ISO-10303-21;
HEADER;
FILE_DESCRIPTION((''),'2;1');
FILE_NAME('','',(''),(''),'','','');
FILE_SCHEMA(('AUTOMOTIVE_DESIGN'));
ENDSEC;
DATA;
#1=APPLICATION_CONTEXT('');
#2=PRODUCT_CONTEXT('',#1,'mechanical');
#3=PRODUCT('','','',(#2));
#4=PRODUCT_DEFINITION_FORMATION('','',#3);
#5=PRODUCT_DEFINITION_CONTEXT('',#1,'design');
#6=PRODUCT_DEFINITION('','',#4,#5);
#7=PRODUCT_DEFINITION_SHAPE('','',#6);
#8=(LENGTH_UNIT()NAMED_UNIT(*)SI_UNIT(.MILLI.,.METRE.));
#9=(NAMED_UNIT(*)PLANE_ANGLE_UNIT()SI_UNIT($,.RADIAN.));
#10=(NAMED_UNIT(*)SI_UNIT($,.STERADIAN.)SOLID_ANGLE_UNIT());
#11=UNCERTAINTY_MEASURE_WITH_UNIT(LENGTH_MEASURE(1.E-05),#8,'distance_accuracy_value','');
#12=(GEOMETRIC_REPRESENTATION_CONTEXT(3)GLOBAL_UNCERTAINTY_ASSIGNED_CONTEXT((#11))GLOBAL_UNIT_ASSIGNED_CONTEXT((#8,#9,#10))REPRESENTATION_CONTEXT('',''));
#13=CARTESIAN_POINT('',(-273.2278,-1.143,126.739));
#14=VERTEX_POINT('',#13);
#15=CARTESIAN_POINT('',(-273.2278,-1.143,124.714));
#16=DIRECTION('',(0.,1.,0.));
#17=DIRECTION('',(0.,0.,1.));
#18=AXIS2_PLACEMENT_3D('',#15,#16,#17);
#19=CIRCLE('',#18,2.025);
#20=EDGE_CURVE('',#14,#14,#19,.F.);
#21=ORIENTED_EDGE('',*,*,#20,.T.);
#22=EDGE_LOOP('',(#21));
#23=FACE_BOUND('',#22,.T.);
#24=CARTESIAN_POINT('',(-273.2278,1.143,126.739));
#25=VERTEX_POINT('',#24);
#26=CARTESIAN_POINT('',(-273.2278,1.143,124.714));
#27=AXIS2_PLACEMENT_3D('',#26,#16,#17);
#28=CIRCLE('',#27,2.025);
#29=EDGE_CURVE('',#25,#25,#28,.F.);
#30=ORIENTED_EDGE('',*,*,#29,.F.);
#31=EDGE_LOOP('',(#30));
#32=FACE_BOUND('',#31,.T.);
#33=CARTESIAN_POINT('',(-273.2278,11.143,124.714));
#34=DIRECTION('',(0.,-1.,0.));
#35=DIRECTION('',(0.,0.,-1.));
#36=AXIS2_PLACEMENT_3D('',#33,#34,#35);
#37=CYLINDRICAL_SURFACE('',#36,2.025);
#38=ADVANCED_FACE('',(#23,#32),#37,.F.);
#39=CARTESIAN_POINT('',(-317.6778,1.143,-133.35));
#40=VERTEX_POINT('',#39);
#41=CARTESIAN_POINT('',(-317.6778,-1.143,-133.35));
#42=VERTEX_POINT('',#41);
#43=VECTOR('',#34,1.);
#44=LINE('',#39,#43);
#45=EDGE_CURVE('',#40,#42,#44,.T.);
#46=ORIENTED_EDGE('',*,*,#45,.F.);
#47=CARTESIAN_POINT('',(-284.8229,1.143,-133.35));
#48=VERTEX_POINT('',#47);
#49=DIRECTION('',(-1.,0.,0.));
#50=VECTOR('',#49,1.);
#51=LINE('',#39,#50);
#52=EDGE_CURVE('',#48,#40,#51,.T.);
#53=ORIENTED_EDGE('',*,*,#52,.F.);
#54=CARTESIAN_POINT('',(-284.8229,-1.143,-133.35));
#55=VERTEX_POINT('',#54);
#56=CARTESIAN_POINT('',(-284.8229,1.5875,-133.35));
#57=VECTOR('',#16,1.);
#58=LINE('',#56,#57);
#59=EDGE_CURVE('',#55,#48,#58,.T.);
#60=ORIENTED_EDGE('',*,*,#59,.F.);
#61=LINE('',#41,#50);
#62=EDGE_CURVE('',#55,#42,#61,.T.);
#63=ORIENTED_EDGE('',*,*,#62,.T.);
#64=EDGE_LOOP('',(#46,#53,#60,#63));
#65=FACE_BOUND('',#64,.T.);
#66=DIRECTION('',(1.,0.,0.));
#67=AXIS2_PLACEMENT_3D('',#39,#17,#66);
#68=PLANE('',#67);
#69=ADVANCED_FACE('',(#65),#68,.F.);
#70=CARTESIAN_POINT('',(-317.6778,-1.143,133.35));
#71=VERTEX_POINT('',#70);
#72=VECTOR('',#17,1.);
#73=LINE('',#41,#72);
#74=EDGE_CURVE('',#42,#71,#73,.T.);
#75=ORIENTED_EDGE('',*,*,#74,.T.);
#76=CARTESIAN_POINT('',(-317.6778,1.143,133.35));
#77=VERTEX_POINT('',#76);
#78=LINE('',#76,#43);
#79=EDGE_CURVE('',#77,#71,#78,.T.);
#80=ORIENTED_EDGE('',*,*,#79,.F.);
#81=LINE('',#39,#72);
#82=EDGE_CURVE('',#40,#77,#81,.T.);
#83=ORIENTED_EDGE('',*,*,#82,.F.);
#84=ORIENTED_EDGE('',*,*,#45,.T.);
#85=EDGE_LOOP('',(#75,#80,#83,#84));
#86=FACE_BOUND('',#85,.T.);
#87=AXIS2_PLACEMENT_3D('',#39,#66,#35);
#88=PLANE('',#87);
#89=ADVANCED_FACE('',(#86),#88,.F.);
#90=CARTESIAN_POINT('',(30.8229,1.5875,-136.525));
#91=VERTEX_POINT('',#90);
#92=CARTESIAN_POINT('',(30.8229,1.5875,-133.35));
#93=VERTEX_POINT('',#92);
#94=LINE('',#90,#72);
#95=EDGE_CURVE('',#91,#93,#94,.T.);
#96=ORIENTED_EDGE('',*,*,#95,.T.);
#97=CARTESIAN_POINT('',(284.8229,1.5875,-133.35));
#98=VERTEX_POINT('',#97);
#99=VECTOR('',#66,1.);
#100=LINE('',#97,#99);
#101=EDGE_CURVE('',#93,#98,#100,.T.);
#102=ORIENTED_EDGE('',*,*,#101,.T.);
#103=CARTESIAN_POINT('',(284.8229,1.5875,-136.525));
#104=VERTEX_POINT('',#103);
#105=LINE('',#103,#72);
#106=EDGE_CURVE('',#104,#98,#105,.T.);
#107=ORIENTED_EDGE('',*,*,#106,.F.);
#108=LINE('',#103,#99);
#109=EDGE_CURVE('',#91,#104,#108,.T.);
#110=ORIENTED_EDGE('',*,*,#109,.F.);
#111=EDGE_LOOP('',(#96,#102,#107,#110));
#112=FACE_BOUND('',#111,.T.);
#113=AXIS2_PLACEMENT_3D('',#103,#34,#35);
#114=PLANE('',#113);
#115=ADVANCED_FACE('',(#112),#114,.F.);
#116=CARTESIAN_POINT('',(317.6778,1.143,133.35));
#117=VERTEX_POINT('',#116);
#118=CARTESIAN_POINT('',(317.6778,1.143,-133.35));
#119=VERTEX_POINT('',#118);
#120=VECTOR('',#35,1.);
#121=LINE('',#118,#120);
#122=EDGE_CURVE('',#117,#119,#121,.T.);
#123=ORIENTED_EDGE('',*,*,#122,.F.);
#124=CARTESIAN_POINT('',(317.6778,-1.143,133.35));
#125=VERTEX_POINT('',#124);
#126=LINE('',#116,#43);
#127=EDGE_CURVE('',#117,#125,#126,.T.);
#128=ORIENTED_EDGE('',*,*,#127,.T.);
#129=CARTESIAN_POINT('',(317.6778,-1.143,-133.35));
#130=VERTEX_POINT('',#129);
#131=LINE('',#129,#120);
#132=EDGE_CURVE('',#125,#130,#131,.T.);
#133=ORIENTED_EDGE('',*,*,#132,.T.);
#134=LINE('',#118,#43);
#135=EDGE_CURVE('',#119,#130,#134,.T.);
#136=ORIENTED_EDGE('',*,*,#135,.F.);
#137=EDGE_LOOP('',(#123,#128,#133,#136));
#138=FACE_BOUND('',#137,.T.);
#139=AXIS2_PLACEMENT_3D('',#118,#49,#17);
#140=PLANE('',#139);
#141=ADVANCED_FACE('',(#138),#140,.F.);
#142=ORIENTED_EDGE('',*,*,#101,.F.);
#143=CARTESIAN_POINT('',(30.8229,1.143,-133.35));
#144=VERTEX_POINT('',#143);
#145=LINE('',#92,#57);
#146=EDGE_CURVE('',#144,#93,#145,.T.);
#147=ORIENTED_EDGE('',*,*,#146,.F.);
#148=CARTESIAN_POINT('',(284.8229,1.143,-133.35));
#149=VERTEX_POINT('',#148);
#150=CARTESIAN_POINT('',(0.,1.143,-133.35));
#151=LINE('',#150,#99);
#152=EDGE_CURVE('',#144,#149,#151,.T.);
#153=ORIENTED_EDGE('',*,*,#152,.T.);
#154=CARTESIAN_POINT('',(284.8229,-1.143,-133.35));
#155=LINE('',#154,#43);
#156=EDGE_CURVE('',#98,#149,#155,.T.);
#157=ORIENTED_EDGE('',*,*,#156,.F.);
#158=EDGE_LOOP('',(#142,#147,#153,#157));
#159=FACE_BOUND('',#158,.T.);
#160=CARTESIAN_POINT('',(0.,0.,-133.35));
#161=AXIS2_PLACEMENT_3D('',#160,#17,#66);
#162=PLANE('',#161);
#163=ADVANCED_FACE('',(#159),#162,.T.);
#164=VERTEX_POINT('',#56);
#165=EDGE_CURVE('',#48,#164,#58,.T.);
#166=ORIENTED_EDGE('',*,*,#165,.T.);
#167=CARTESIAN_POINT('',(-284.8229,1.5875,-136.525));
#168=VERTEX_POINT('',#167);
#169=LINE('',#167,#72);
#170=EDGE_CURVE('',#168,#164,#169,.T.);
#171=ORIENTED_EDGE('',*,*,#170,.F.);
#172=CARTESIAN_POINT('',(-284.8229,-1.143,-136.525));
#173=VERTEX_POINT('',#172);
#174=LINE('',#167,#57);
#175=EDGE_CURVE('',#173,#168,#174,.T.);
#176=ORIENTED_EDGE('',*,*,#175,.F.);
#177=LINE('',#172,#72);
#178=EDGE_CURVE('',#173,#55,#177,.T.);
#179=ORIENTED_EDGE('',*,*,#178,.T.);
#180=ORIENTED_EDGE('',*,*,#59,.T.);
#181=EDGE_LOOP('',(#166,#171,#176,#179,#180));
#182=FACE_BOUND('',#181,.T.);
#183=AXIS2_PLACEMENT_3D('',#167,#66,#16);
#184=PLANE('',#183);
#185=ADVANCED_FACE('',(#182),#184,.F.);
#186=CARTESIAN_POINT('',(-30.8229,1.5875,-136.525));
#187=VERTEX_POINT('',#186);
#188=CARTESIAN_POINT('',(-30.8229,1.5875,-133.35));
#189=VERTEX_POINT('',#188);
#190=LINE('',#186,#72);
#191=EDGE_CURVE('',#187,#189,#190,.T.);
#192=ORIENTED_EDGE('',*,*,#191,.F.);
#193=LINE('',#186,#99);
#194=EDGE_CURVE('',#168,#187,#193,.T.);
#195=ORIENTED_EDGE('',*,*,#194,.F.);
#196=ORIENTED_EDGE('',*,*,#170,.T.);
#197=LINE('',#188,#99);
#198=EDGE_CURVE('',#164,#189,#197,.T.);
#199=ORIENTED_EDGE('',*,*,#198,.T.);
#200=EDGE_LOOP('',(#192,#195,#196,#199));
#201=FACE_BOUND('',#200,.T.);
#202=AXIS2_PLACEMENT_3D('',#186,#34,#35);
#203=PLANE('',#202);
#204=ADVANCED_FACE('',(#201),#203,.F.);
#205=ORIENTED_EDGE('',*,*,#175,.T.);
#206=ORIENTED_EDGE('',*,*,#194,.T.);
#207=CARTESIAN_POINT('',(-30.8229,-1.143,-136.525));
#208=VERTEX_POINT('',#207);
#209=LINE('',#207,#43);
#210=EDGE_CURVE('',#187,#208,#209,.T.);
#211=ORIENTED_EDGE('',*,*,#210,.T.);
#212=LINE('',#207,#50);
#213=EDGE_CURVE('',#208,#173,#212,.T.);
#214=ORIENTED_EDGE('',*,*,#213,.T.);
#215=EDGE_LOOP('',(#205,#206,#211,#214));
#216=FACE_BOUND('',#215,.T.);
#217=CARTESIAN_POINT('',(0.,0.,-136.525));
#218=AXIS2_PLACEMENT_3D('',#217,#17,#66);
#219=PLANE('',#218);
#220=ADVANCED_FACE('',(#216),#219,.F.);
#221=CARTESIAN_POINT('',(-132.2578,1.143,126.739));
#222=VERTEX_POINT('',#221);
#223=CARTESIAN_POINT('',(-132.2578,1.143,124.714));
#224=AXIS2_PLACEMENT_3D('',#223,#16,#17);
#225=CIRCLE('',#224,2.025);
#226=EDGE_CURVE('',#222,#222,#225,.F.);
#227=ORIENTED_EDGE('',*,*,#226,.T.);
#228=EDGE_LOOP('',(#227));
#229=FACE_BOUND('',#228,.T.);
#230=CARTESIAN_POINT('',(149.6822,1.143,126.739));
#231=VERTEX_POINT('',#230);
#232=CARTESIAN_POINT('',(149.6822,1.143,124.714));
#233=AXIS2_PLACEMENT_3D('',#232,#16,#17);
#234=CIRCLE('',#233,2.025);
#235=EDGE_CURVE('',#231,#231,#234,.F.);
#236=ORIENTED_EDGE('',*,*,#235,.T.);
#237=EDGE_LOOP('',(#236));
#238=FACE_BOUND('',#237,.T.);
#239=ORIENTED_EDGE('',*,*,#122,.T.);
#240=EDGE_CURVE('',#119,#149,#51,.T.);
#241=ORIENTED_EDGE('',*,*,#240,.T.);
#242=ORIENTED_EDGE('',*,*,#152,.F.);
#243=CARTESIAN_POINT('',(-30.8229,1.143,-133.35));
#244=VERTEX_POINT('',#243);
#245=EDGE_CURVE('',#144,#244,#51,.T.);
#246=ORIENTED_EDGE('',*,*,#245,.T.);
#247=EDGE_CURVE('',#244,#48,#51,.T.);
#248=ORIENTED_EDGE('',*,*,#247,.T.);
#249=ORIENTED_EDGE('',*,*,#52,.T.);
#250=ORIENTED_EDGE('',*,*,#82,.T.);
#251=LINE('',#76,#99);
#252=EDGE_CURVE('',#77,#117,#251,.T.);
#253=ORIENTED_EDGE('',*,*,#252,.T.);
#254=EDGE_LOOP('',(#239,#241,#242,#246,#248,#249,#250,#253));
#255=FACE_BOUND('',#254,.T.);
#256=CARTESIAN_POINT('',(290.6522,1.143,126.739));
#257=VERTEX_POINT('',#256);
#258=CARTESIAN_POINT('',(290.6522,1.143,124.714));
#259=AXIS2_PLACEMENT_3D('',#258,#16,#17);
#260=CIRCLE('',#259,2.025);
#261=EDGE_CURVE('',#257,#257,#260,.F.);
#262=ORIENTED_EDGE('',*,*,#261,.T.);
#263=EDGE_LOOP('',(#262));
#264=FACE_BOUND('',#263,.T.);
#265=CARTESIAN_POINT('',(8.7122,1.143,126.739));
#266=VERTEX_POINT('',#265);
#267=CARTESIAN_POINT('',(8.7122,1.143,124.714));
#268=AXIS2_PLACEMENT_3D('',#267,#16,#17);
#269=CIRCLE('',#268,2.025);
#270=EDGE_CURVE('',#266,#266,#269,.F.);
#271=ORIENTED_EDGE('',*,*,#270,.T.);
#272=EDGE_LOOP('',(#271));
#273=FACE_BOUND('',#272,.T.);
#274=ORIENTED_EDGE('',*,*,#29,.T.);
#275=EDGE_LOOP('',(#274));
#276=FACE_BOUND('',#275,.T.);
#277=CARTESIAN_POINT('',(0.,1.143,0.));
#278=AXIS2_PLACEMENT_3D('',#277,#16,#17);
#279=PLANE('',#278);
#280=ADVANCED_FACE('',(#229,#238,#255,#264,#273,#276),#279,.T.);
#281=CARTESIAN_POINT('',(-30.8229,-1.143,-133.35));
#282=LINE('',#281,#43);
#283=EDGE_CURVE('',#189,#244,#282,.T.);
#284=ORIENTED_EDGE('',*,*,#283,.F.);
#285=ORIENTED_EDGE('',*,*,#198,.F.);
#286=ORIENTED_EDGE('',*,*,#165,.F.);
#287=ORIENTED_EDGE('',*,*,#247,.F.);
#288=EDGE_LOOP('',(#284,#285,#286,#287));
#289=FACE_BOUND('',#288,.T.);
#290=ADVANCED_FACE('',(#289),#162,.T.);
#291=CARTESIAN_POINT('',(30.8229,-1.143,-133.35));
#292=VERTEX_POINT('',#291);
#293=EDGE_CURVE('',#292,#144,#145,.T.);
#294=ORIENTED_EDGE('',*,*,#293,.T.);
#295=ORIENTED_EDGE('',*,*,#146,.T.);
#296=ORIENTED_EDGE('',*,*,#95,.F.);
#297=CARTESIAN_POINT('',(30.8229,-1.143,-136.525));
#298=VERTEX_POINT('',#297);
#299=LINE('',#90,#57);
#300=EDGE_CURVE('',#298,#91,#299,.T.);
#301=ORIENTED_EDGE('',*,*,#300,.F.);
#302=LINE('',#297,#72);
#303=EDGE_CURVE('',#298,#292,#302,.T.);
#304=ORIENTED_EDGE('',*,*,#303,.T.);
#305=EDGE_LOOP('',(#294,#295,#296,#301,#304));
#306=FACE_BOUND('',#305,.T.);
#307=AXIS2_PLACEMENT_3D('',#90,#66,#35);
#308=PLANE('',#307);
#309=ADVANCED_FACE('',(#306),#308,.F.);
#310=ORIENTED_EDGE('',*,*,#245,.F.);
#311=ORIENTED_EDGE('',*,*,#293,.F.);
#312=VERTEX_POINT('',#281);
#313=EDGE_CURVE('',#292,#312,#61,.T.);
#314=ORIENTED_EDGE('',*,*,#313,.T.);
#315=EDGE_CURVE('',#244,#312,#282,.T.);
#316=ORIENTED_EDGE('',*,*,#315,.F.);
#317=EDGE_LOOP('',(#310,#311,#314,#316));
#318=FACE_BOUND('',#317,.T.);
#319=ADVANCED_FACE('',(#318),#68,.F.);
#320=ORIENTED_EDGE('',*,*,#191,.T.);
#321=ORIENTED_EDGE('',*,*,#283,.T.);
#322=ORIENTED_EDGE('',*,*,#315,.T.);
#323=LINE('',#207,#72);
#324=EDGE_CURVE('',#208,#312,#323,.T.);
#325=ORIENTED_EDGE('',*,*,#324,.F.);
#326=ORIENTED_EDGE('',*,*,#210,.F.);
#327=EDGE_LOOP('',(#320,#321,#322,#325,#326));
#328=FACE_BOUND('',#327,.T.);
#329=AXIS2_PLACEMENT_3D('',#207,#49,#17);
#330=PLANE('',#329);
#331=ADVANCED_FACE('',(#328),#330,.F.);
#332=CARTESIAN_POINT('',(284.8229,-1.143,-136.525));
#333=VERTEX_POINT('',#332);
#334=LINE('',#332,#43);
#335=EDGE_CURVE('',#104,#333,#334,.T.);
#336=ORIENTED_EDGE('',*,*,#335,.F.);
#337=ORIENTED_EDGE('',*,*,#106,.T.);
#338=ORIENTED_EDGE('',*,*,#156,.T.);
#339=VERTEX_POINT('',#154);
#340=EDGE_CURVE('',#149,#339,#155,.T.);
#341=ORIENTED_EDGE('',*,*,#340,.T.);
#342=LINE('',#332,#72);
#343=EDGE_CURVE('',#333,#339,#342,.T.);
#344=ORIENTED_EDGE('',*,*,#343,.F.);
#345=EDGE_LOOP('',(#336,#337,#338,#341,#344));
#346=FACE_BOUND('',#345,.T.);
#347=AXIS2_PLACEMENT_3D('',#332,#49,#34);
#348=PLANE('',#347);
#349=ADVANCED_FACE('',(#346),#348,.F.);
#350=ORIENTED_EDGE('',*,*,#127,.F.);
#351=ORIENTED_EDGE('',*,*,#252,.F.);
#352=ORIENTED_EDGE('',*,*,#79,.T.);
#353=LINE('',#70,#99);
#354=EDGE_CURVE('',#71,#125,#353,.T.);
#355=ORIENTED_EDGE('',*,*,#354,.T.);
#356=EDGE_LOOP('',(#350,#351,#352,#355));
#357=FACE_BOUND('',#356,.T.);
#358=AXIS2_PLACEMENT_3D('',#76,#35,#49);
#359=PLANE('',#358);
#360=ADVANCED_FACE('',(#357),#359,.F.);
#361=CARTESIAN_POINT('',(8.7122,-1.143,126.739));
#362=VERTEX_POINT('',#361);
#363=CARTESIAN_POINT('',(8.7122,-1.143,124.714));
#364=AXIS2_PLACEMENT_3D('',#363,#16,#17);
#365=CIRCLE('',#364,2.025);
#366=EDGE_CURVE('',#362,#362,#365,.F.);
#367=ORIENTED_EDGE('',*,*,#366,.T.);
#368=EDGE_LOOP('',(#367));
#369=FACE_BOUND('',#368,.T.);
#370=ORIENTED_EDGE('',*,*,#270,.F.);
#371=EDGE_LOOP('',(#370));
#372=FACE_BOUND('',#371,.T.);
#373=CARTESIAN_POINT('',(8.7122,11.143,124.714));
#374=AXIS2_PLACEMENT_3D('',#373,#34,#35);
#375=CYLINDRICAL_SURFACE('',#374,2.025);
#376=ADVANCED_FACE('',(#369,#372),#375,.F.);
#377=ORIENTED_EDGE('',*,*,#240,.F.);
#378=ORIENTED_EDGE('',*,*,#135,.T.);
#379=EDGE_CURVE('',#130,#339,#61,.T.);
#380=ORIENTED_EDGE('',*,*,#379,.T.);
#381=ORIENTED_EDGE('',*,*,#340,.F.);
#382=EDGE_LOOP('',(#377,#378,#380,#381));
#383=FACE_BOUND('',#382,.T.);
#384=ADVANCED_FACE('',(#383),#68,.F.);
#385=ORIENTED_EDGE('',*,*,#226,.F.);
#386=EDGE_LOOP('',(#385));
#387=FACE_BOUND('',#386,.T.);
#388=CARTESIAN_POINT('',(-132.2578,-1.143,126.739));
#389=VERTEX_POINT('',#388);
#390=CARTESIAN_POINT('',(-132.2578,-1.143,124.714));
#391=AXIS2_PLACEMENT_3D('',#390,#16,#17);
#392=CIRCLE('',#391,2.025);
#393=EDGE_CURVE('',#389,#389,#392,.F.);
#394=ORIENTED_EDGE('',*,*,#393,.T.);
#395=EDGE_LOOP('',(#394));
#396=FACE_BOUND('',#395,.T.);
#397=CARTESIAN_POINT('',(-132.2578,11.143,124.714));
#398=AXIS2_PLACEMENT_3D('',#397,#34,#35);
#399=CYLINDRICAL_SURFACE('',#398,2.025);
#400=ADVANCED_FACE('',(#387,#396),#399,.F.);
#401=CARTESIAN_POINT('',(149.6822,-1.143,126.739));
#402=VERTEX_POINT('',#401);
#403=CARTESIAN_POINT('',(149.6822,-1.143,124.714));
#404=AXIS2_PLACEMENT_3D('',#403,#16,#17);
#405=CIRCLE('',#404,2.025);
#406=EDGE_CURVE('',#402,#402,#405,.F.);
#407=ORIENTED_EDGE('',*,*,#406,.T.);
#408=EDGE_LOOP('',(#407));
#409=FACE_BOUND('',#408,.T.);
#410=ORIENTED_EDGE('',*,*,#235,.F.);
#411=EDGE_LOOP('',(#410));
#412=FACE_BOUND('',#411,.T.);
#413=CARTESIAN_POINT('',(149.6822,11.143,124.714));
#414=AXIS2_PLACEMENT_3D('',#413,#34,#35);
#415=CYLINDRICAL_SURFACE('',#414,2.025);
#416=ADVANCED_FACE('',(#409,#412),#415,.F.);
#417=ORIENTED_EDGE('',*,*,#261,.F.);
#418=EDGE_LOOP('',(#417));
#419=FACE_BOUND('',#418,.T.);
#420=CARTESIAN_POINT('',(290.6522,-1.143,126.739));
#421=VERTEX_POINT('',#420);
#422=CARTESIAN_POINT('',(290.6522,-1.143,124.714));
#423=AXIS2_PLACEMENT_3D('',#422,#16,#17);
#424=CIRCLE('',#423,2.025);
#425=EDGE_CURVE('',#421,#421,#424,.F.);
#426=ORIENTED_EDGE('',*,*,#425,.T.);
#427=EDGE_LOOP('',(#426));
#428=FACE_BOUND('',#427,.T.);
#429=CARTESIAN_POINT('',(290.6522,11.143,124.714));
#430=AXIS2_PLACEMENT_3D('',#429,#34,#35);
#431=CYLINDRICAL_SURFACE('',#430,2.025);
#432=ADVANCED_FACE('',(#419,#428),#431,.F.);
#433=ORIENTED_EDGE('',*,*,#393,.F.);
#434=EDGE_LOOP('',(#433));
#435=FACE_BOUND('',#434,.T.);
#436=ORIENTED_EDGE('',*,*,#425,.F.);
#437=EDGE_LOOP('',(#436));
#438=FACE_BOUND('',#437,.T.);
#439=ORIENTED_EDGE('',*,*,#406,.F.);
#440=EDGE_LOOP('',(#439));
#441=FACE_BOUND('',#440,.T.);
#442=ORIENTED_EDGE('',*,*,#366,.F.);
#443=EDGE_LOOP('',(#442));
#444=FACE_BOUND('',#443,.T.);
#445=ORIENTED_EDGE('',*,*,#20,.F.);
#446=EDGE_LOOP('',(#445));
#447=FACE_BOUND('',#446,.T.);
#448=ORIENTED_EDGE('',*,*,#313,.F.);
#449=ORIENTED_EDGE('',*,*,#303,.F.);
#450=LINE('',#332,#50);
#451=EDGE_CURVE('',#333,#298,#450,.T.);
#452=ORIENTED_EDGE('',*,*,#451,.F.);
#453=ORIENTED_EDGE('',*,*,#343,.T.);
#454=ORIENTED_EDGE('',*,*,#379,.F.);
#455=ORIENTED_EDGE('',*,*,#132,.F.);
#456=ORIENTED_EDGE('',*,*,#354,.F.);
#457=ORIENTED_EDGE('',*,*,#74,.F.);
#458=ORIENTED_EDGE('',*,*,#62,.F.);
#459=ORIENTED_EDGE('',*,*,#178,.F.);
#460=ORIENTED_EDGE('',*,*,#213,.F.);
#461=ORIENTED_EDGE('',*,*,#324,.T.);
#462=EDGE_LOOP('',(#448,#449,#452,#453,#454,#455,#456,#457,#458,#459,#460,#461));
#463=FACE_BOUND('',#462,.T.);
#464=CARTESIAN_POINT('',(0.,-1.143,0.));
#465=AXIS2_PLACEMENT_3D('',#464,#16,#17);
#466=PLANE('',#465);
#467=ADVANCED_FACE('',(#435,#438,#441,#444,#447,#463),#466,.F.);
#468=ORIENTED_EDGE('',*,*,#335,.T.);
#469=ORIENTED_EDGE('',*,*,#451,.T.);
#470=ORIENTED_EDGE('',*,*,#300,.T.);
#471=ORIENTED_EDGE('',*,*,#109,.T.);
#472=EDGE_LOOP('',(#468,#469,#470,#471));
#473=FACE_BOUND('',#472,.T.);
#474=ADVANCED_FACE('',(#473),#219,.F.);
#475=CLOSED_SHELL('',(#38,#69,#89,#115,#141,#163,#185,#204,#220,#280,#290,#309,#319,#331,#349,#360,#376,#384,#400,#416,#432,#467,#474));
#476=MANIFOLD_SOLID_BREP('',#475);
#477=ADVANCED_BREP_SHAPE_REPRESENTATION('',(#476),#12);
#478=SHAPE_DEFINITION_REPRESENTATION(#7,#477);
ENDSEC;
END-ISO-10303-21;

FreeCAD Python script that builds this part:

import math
import FreeCAD as App
import Part
import Sketcher
Q = App.Units.Quantity


def add_polygon(sketch, points):
    """Adds a closed chain of lines whose ends are joined by coincident constraints."""
    first, n = sketch.GeometryCount, len(points)
    for a, b in zip(points, points[1:] + points[:1]):
        sketch.addGeometry(Part.LineSegment(App.Vector(*a, 0), App.Vector(*b, 0)), False)
    for i in range(n):
        sketch.addConstraint(Sketcher.Constraint("Coincident", first + i, 2, first + (i + 1) % n, 1))

doc = App.newDocument("Part")
body = doc.addObject("PartDesign::Body", "Body")

sketch1 = body.newObject("Sketcher::SketchObject", "Sketch")
sketch1.AttachmentSupport = (doc.getObject("XZ_Plane"), [""])
sketch1.MapMode = "FlatFace"
add_polygon(sketch1, [(-318, -133), (-318, 133), (318, 133), (318, -133)])
sketch1.addConstraint(Sketcher.Constraint("Vertical", 0))
sketch1.addConstraint(Sketcher.Constraint("Horizontal", 1))
sketch1.addConstraint(Sketcher.Constraint("Vertical", 2))
sketch1.addConstraint(Sketcher.Constraint("Horizontal", 3))
sketch1.addConstraint(Sketcher.Constraint("Symmetric", 0, 2, 2, 2, -1, 1))
sketch1.addConstraint(Sketcher.Constraint("DistanceY", 0, 1, 0, 2, Q("10.5 in")))
sketch1.addConstraint(Sketcher.Constraint("DistanceX", 1, 1, 1, 2, Q("25.014 in")))
pad1 = body.newObject("PartDesign::Pad", "Pad")
pad1.Profile = sketch1
pad1.Length = Q("0.09 in")
pad1.Midplane = True

sketch2 = body.newObject("Sketcher::SketchObject", "Sketch001")
sketch2.AttachmentSupport = (doc.getObject("XY_Plane"), [""])
sketch2.MapMode = "FlatFace"
sketch2.AttachmentOffset = App.Placement(App.Vector(0, 0, -5.25 * 25.4), App.Rotation())
add_polygon(sketch2, [(284.8, 1.6), (284.8, -1.1), (30.8, -1.1), (30.8, 1.6)])
add_polygon(sketch2, [(-30.8, 1.6), (-30.8, -1.1), (-284.8, -1.1), (-284.8, 1.6)])
sketch2.addConstraint(Sketcher.Constraint("Vertical", 0))
sketch2.addConstraint(Sketcher.Constraint("Horizontal", 1))
sketch2.addConstraint(Sketcher.Constraint("Vertical", 2))
sketch2.addConstraint(Sketcher.Constraint("Horizontal", 3))
sketch2.addConstraint(Sketcher.Constraint("Vertical", 4))
sketch2.addConstraint(Sketcher.Constraint("Horizontal", 5))
sketch2.addConstraint(Sketcher.Constraint("Vertical", 6))
sketch2.addConstraint(Sketcher.Constraint("Horizontal", 7))
sketch2.addConstraint(Sketcher.Constraint("Symmetric", 1, 2, 4, 2, -2))
sketch2.addConstraint(Sketcher.Constraint("Symmetric", 3, 2, 6, 2, -2))
sketch2.addConstraint(Sketcher.Constraint("DistanceX", 1, 2, 1, 1, Q("10 in")))
sketch2.addConstraint(Sketcher.Constraint("DistanceY", 0, 2, 0, 1, Q("0.1075 in")))
sketch2.addConstraint(Sketcher.Constraint("DistanceY", 0, 2, -1, 1, Q("0.045 in")))
sketch2.addConstraint(Sketcher.Constraint("DistanceX", 4, 2, 1, 2, Q("2.427 in")))
pad2 = body.newObject("PartDesign::Pad", "Pad001")
pad2.Profile = sketch2
pad2.Length = Q("0.125 in")
pad2.Reversed = True

sketch3 = body.newObject("Sketcher::SketchObject", "Sketch002")
sketch3.AttachmentSupport = (doc.getObject("XZ_Plane"), [""])
sketch3.MapMode = "FlatFace"
sketch3.AttachmentOffset = App.Placement(App.Vector(0, 0, -0.045 * 25.4), App.Rotation())
sketch3.addGeometry(Part.ArcOfCircle(Part.Circle(App.Vector(-273.2, 124.7, 0), App.Vector(0, 0, 1), 2), math.radians(90), math.radians(180)), False)
sketch3.addGeometry(Part.ArcOfCircle(Part.Circle(App.Vector(-273.2, 124.7, 0), App.Vector(0, 0, 1), 2), math.radians(0), math.radians(90)), False)
sketch3.addGeometry(Part.ArcOfCircle(Part.Circle(App.Vector(-273.2, 124.7, 0), App.Vector(0, 0, 1), 2), math.radians(180), math.radians(360)), False)
sketch3.addConstraint(Sketcher.Constraint("Tangent", 0, 1, 1, 2))
sketch3.addConstraint(Sketcher.Constraint("Tangent", 1, 1, 2, 2))
sketch3.addConstraint(Sketcher.Constraint("Tangent", 2, 1, 0, 2))
sketch3.addConstraint(Sketcher.Constraint("Horizontal", 2, 3, 1, 1))
sketch3.addConstraint(Sketcher.Constraint("Horizontal", 1, 1, 2, 1))
sketch3.addConstraint(Sketcher.Constraint("Vertical", 2, 3, 0, 1))
sketch3.addConstraint(Sketcher.Constraint("DistanceY", -1, 1, 0, 3, Q("4.91 in")))
sketch3.addConstraint(Sketcher.Constraint("Radius", 0, 2.025))
sketch3.addConstraint(Sketcher.Constraint("DistanceX", 0, 3, -1, 1, Q("10.757 in")))
pocket1 = body.newObject("PartDesign::Pocket", "Pocket")
pocket1.Profile = sketch3
pocket1.Length = 20
pocket1.Midplane = True
doc.recompute()

linearpattern = body.newObject("PartDesign::LinearPattern", "LinearPattern")
linearpattern.Originals = [pocket1]
linearpattern.Direction = (doc.getObject("X_Axis"), [""])
linearpattern.Mode = "offset"
linearpattern.Offset = Q("5.55 in")
linearpattern.Occurrences = 5
body.Tip = linearpattern

doc.recompute()
